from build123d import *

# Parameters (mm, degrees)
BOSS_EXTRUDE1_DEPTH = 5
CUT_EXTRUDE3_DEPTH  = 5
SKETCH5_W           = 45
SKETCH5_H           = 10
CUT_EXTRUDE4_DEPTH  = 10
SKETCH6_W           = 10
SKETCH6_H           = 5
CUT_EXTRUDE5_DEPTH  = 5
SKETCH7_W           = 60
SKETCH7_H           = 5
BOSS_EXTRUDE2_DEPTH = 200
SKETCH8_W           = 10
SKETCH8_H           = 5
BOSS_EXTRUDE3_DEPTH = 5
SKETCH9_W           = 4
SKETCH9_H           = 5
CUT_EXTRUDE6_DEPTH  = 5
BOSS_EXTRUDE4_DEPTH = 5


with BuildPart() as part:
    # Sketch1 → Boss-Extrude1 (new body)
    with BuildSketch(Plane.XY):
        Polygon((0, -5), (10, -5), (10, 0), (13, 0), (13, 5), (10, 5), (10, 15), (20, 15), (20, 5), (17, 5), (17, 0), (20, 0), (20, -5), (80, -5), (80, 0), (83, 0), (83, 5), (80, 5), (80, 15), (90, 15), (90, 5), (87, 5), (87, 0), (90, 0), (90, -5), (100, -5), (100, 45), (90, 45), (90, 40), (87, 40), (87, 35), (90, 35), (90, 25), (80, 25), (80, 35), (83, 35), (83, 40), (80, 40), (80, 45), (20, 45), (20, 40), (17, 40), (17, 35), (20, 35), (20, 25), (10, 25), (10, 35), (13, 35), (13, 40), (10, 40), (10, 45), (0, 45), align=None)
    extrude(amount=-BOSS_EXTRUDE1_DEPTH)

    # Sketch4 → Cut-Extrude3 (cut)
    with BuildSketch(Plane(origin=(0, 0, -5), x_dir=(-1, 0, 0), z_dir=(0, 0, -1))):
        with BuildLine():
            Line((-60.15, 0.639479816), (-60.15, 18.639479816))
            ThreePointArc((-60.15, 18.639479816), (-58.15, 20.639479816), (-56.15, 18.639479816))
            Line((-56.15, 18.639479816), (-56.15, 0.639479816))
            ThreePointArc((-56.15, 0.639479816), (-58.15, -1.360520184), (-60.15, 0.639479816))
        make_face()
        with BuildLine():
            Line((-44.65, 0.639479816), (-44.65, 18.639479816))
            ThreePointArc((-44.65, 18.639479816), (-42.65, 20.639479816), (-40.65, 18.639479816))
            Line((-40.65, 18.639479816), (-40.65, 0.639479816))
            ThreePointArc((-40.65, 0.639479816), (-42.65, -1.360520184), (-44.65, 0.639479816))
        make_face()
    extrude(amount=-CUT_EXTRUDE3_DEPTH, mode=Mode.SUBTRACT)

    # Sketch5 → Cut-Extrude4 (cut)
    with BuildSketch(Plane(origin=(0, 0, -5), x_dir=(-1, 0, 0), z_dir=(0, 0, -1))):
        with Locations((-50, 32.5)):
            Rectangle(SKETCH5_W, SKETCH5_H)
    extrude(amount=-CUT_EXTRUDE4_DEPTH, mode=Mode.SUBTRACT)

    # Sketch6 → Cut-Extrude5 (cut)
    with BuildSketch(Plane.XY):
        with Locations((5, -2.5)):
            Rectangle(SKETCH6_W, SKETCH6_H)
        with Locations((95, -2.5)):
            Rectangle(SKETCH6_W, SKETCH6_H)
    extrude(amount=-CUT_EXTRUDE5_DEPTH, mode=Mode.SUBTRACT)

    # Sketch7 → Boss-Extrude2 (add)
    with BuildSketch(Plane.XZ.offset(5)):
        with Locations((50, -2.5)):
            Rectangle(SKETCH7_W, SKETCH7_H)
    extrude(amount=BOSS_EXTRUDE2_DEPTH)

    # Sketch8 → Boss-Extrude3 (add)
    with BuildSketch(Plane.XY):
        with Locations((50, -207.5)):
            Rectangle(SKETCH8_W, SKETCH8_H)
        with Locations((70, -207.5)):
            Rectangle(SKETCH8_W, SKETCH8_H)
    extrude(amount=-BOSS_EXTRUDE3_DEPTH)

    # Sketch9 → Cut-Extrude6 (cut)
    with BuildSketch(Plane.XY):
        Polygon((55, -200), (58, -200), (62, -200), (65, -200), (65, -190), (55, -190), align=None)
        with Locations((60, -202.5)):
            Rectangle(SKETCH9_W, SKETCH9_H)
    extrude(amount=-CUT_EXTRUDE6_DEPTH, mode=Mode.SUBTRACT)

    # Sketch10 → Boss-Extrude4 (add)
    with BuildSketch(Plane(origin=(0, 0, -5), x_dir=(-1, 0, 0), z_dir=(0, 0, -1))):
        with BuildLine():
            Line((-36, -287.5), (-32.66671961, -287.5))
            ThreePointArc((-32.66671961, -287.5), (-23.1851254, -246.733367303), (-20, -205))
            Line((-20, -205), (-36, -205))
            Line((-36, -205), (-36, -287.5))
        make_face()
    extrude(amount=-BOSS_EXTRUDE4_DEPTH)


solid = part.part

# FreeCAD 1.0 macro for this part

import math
import FreeCAD as App
import Part
import Sketcher


def add_polygon(sketch, points):
    """Adds a closed chain of lines whose ends are joined by coincident constraints."""
    first, n = sketch.GeometryCount, len(points)
    for a, b in zip(points, points[1:] + points[:1]):
        sketch.addGeometry(Part.LineSegment(App.Vector(*a, 0), App.Vector(*b, 0)), False)
    for i in range(n):
        sketch.addConstraint(Sketcher.Constraint("Coincident", first + i, 2, first + (i + 1) % n, 1))

doc = App.newDocument("Part")
params = doc.addObject("Spreadsheet::Sheet", "Params")
for row, (alias, value) in enumerate([
    ("sketch1_width", "10 mm"),
    ("sketch1_width2", "3 mm"),
    ("sketch1_width3", "60 mm"),
    ("sketch1_height", "5 mm"),
    ("sketch1_height2", "50 mm"),
    ("pad1_length", "5 mm"),
    ("sketch2_radius", "2 mm"),
    ("sketch2_height", "18 mm"),
    ("pocket1_length", "5 mm"),
    ("sketch3_width", "45 mm"),
    ("sketch3_height", "10 mm"),
    ("pocket2_length", "10 mm"),
    ("sketch4_width", "10 mm"),
    ("sketch4_height", "5 mm"),
    ("pocket3_length", "5 mm"),
    ("sketch5_width", "60 mm"),
    ("sketch5_height", "5 mm"),
    ("pad2_length", "200 mm"),
    ("sketch6_width", "10 mm"),
    ("sketch6_height", "5 mm"),
    ("pad3_length", "5 mm"),
    ("sketch7_width", "3 mm"),
    ("sketch7_width2", "4 mm"),
    ("sketch7_height", "5 mm"),
    ("pocket4_length", "5 mm"),
    ("sketch8_radius", "275 mm"),
    ("sketch8_width", "16 mm"),
    ("sketch8_height", "82.5 mm"),
    ("pad4_length", "5 mm"),
], start=1):
    params.set(f"A{row}", alias)
    params.set(f"B{row}", "=" + value)
    params.setAlias(f"B{row}", alias)

body = doc.addObject("PartDesign::Body", "Body")

# Sketch on XY plane
sketch1 = doc.addObject("Sketcher::SketchObject", "Sketch")
body.addObject(sketch1)
sketch1.AttachmentSupport = (doc.XY_Plane, [""])
sketch1.MapMode = "FlatFace"
add_polygon(sketch1, [(0, -5), (10, -5), (10, 0), (13, 0), (13, 5), (10, 5), (10, 15), (20, 15), (20, 5), (17, 5), (17, 0), (20, 0), (20, -5), (80, -5), (80, 0), (83, 0), (83, 5), (80, 5), (80, 15), (90, 15), (90, 5), (87, 5), (87, 0), (90, 0), (90, -5), (100, -5), (100, 45), (90, 45), (90, 40), (87, 40), (87, 35), (90, 35), (90, 25), (80, 25), (80, 35), (83, 35), (83, 40), (80, 40), (80, 45), (20, 45), (20, 40), (17, 40), (17, 35), (20, 35), (20, 25), (10, 25), (10, 35), (13, 35), (13, 40), (10, 40), (10, 45), (0, 45)])  # lines 0-51
sketch1.addConstraint(Sketcher.Constraint("Horizontal", 0))
sketch1.addConstraint(Sketcher.Constraint("Vertical", 1))
sketch1.addConstraint(Sketcher.Constraint("Horizontal", 2))
sketch1.addConstraint(Sketcher.Constraint("Vertical", 3))
sketch1.addConstraint(Sketcher.Constraint("Horizontal", 4))
sketch1.addConstraint(Sketcher.Constraint("Vertical", 5))
sketch1.addConstraint(Sketcher.Constraint("Horizontal", 6))
sketch1.addConstraint(Sketcher.Constraint("Vertical", 7))
sketch1.addConstraint(Sketcher.Constraint("Horizontal", 8))
sketch1.addConstraint(Sketcher.Constraint("Vertical", 9))
sketch1.addConstraint(Sketcher.Constraint("Horizontal", 10))
sketch1.addConstraint(Sketcher.Constraint("Vertical", 11))
sketch1.addConstraint(Sketcher.Constraint("Horizontal", 12))
sketch1.addConstraint(Sketcher.Constraint("Vertical", 13))
sketch1.addConstraint(Sketcher.Constraint("Horizontal", 14))
sketch1.addConstraint(Sketcher.Constraint("Vertical", 15))
sketch1.addConstraint(Sketcher.Constraint("Horizontal", 16))
sketch1.addConstraint(Sketcher.Constraint("Vertical", 17))
sketch1.addConstraint(Sketcher.Constraint("Horizontal", 18))
sketch1.addConstraint(Sketcher.Constraint("Vertical", 19))
sketch1.addConstraint(Sketcher.Constraint("Horizontal", 20))
sketch1.addConstraint(Sketcher.Constraint("Vertical", 21))
sketch1.addConstraint(Sketcher.Constraint("Horizontal", 22))
sketch1.addConstraint(Sketcher.Constraint("Vertical", 23))
sketch1.addConstraint(Sketcher.Constraint("Horizontal", 24))
sketch1.addConstraint(Sketcher.Constraint("Vertical", 25))
sketch1.addConstraint(Sketcher.Constraint("Horizontal", 26))
sketch1.addConstraint(Sketcher.Constraint("Vertical", 27))
sketch1.addConstraint(Sketcher.Constraint("Horizontal", 28))
sketch1.addConstraint(Sketcher.Constraint("Vertical", 29))
sketch1.addConstraint(Sketcher.Constraint("Horizontal", 30))
sketch1.addConstraint(Sketcher.Constraint("Vertical", 31))
sketch1.addConstraint(Sketcher.Constraint("Horizontal", 32))
sketch1.addConstraint(Sketcher.Constraint("Vertical", 33))
sketch1.addConstraint(Sketcher.Constraint("Horizontal", 34))
sketch1.addConstraint(Sketcher.Constraint("Vertical", 35))
sketch1.addConstraint(Sketcher.Constraint("Horizontal", 36))
sketch1.addConstraint(Sketcher.Constraint("Vertical", 37))
sketch1.addConstraint(Sketcher.Constraint("Horizontal", 38))
sketch1.addConstraint(Sketcher.Constraint("Vertical", 39))
sketch1.addConstraint(Sketcher.Constraint("Horizontal", 40))
sketch1.addConstraint(Sketcher.Constraint("Vertical", 41))
sketch1.addConstraint(Sketcher.Constraint("Horizontal", 42))
sketch1.addConstraint(Sketcher.Constraint("Vertical", 43))
sketch1.addConstraint(Sketcher.Constraint("Horizontal", 44))
sketch1.addConstraint(Sketcher.Constraint("Vertical", 45))
sketch1.addConstraint(Sketcher.Constraint("Horizontal", 46))
sketch1.addConstraint(Sketcher.Constraint("Vertical", 47))
sketch1.addConstraint(Sketcher.Constraint("Horizontal", 48))
sketch1.addConstraint(Sketcher.Constraint("Vertical", 49))
sketch1.addConstraint(Sketcher.Constraint("Horizontal", 50))
sketch1.addConstraint(Sketcher.Constraint("Vertical", 51))
sketch1.addConstraint(Sketcher.Constraint("Symmetric", 0, 2, 4, 2, -1))
sketch1.addConstraint(Sketcher.Constraint("Symmetric", 7, 2, 11, 2, -1))
sketch1.addConstraint(Sketcher.Constraint("Symmetric", 12, 2, 16, 2, -1))
sketch1.addConstraint(Sketcher.Constraint("Symmetric", 19, 2, 23, 2, -1))
sketch1.addConstraint(Sketcher.Constraint("PointOnObject", 1, 2, -1))
sketch1.addConstraint(Sketcher.Constraint("PointOnObject", 9, 2, -1))
sketch1.addConstraint(Sketcher.Constraint("PointOnObject", 13, 2, -1))
sketch1.addConstraint(Sketcher.Constraint("PointOnObject", 21, 2, -1))
sketch1.addConstraint(Sketcher.Constraint("PointOnObject", 50, 2, -2))
sketch1.addConstraint(Sketcher.Constraint("Horizontal", 4, 2, 7, 2))
sketch1.addConstraint(Sketcher.Constraint("Horizontal", 6, 2, 17, 2))
sketch1.addConstraint(Sketcher.Constraint("Horizontal", 16, 2, 19, 2))
sketch1.addConstraint(Sketcher.Constraint("Horizontal", 30, 2, 33, 2))
sketch1.addConstraint(Sketcher.Constraint("Horizontal", 28, 2, 35, 2))
sketch1.addConstraint(Sketcher.Constraint("Horizontal", 26, 2, 37, 2))
sketch1.addConstraint(Sketcher.Constraint("Horizontal", 36, 2, 39, 2))
sketch1.addConstraint(Sketcher.Constraint("Horizontal", 34, 2, 41, 2))
sketch1.addConstraint(Sketcher.Constraint("Horizontal", 32, 2, 43, 2))
sketch1.addConstraint(Sketcher.Constraint("Horizontal", 42, 2, 45, 2))
sketch1.addConstraint(Sketcher.Constraint("Horizontal", 40, 2, 47, 2))
sketch1.addConstraint(Sketcher.Constraint("Horizontal", 38, 2, 49, 2))
sketch1.addConstraint(Sketcher.Constraint("Vertical", 23, 2, 26, 2))
sketch1.addConstraint(Sketcher.Constraint("Vertical", 21, 2, 28, 2))
sketch1.addConstraint(Sketcher.Constraint("Vertical", 27, 2, 30, 2))
sketch1.addConstraint(Sketcher.Constraint("Vertical", 17, 2, 32, 2))
sketch1.addConstraint(Sketcher.Constraint("Vertical", 15, 2, 34, 2))
sketch1.addConstraint(Sketcher.Constraint("Vertical", 33, 2, 36, 2))
sketch1.addConstraint(Sketcher.Constraint("Vertical", 11, 2, 38, 2))
sketch1.addConstraint(Sketcher.Constraint("Vertical", 9, 2, 40, 2))
sketch1.addConstraint(Sketcher.Constraint("Vertical", 39, 2, 42, 2))
sketch1.addConstraint(Sketcher.Constraint("Vertical", 5, 2, 44, 2))
sketch1.addConstraint(Sketcher.Constraint("Vertical", 3, 2, 46, 2))
sketch1.addConstraint(Sketcher.Constraint("Vertical", 45, 2, 48, 2))
sketch1.addConstraint(Sketcher.Constraint("Equal", 0, 6))
sketch1.addConstraint(Sketcher.Constraint("Equal", 4, 8))
sketch1.addConstraint(Sketcher.Constraint("Equal", 10, 14))
sketch1.addConstraint(Sketcher.Constraint("Equal", 6, 18))
sketch1.addConstraint(Sketcher.Constraint("Equal", 16, 20))
sketch1.addConstraint(Sketcher.Constraint("Equal", 18, 24))
sketch1.addConstraint(Sketcher.Constraint("Equal", 50, 5))
sketch1.addConstraint(Sketcher.Constraint("Equal", 23, 27))
sketch1.addConstraint(Sketcher.Constraint("Equal", 27, 29))
sketch1.addConstraint(Sketcher.Constraint("Equal", 19, 31))
sketch1.addConstraint(Sketcher.Constraint("DistanceX", 0, 1, 0, 2, 10.0))
sketch1.addConstraint(Sketcher.Constraint("DistanceX", 2, 1, 2, 2, 3.0))
sketch1.addConstraint(Sketcher.Constraint("DistanceX", 12, 1, 12, 2, 60.0))
sketch1.addConstraint(Sketcher.Constraint("DistanceY", 1, 1, 1, 2, 5.0))
sketch1.addConstraint(Sketcher.Constraint("DistanceY", 25, 1, 25, 2, 50.0))
sketch1.setExpression("Constraints[147]", "Params.sketch1_width")
sketch1.setExpression("Constraints[148]", "Params.sketch1_width2")
sketch1.setExpression("Constraints[149]", "Params.sketch1_width3")
sketch1.setExpression("Constraints[150]", "Params.sketch1_height")
sketch1.setExpression("Constraints[151]", "Params.sketch1_height2")
pad1 = doc.addObject("PartDesign::Pad", "Pad")
body.addObject(pad1)
pad1.Profile = sketch1
pad1.setExpression("Length", "Params.pad1_length")
pad1.Reversed = True

# Sketch on XY plane
sketch2 = doc.addObject("Sketcher::SketchObject", "Sketch001")
body.addObject(sketch2)
sketch2.AttachmentSupport = (doc.XY_Plane, [""])
sketch2.MapMode = "FlatFace"
sketch2.AttachmentOffset = App.Placement(App.Vector(0, 0, -5), App.Rotation())
sketch2.addGeometry(Part.LineSegment(App.Vector(60.1, 18.6, 0), App.Vector(60.1, 0.6, 0)), False)
sketch2.addGeometry(Part.ArcOfCircle(Part.Circle(App.Vector(58.1, 0.6, 0), App.Vector(0, 0, 1), 2), math.radians(180), math.radians(360)), False)
sketch2.addGeometry(Part.LineSegment(App.Vector(56.1, 0.6, 0), App.Vector(56.1, 18.6, 0)), False)
sketch2.addGeometry(Part.ArcOfCircle(Part.Circle(App.Vector(58.1, 18.6, 0), App.Vector(0, 0, 1), 2), math.radians(0), math.radians(180)), False)
sketch2.addGeometry(Part.LineSegment(App.Vector(44.6, 18.6, 0), App.Vector(44.6, 0.6, 0)), False)
sketch2.addGeometry(Part.ArcOfCircle(Part.Circle(App.Vector(42.6, 0.6, 0), App.Vector(0, 0, 1), 2), math.radians(180), math.radians(360)), False)
sketch2.addGeometry(Part.LineSegment(App.Vector(40.6, 0.6, 0), App.Vector(40.6, 18.6, 0)), False)
sketch2.addGeometry(Part.ArcOfCircle(Part.Circle(App.Vector(42.6, 18.6, 0), App.Vector(0, 0, 1), 2), math.radians(0), math.radians(180)), False)
sketch2.addConstraint(Sketcher.Constraint("Tangent", 0, 2, 1, 2))
sketch2.addConstraint(Sketcher.Constraint("Tangent", 1, 1, 2, 1))
sketch2.addConstraint(Sketcher.Constraint("Tangent", 2, 2, 3, 2))
sketch2.addConstraint(Sketcher.Constraint("Tangent", 3, 1, 0, 1))
sketch2.addConstraint(Sketcher.Constraint("Tangent", 4, 2, 5, 2))
sketch2.addConstraint(Sketcher.Constraint("Tangent", 5, 1, 6, 1))
sketch2.addConstraint(Sketcher.Constraint("Tangent", 6, 2, 7, 2))
sketch2.addConstraint(Sketcher.Constraint("Tangent", 7, 1, 4, 1))
sketch2.addConstraint(Sketcher.Constraint("Vertical", 0))
sketch2.addConstraint(Sketcher.Constraint("Vertical", 2))
sketch2.addConstraint(Sketcher.Constraint("Vertical", 4))
sketch2.addConstraint(Sketcher.Constraint("Vertical", 6))
sketch2.addConstraint(Sketcher.Constraint("Equal", 3, 5))
sketch2.addConstraint(Sketcher.Constraint("Horizontal", 1, 3, 5, 3))
sketch2.addConstraint(Sketcher.Constraint("Horizontal", 3, 3, 7, 3))
sketch2.addConstraint(Sketcher.Constraint("Radius", 1, 2.0))
sketch2.addConstraint(Sketcher.Constraint("DistanceY", 0, 2, 0, 1, 18.0))
sketch2.addConstraint(Sketcher.Constraint("DistanceX", 5, 3, 1, 3, 15.5))
sketch2.addConstraint(Sketcher.Constraint("DistanceX", -1, 1, 1, 3, 58.15))
sketch2.addConstraint(Sketcher.Constraint("DistanceY", -1, 1, 1, 3, 0.63948))
sketch2.setExpression("Constraints[15]", "Params.sketch2_radius")
sketch2.setExpression("Constraints[16]", "Params.sketch2_height")
pocket1 = doc.addObject("PartDesign::Pocket", "Pocket")
body.addObject(pocket1)
pocket1.Profile = sketch2
pocket1.setExpression("Length", "Params.pocket1_length")
pocket1.Reversed = True

# Sketch on XY plane
sketch3 = doc.addObject("Sketcher::SketchObject", "Sketch002")
body.addObject(sketch3)
sketch3.AttachmentSupport = (doc.XY_Plane, [""])
sketch3.MapMode = "FlatFace"
sketch3.AttachmentOffset = App.Placement(App.Vector(0, 0, -5), App.Rotation())
add_polygon(sketch3, [(72, 38), (72, 28), (28, 28), (28, 38)])  # lines 0-3
sketch3.addConstraint(Sketcher.Constraint("Vertical", 0))
sketch3.addConstraint(Sketcher.Constraint("Horizontal", 1))
sketch3.addConstraint(Sketcher.Constraint("Vertical", 2))
sketch3.addConstraint(Sketcher.Constraint("Horizontal", 3))
sketch3.addConstraint(Sketcher.Constraint("DistanceX", 1, 2, 1, 1, 45.0))
sketch3.addConstraint(Sketcher.Constraint("DistanceY", 0, 2, 0, 1, 10.0))
sketch3.addConstraint(Sketcher.Constraint("DistanceX", -1, 1, 0, 2, 72.5))
sketch3.addConstraint(Sketcher.Constraint("DistanceY", -1, 1, 0, 2, 27.5))
sketch3.setExpression("Constraints[8]", "Params.sketch3_width")
sketch3.setExpression("Constraints[9]", "Params.sketch3_height")
pocket2 = doc.addObject("PartDesign::Pocket", "Pocket001")
body.addObject(pocket2)
pocket2.Profile = sketch3
pocket2.setExpression("Length", "Params.pocket2_length")
pocket2.Reversed = True

# Sketch on XY plane
sketch4 = doc.addObject("Sketcher::SketchObject", "Sketch003")
body.addObject(sketch4)
sketch4.AttachmentSupport = (doc.XY_Plane, [""])
sketch4.MapMode = "FlatFace"
add_polygon(sketch4, [(0, 0), (0, -5), (10, -5), (10, 0)])  # lines 0-3
add_polygon(sketch4, [(90, 0), (90, -5), (100, -5), (100, 0)])  # lines 4-7
sketch4.addConstraint(Sketcher.Constraint("Vertical", 0))
sketch4.addConstraint(Sketcher.Constraint("Horizontal", 1))
sketch4.addConstraint(Sketcher.Constraint("Vertical", 2))
sketch4.addConstraint(Sketcher.Constraint("Horizontal", 3))
sketch4.addConstraint(Sketcher.Constraint("Vertical", 4))
sketch4.addConstraint(Sketcher.Constraint("Horizontal", 5))
sketch4.addConstraint(Sketcher.Constraint("Vertical", 6))
sketch4.addConstraint(Sketcher.Constraint("Horizontal", 7))
sketch4.addConstraint(Sketcher.Constraint("Coincident", 3, 2, -1, 1))
sketch4.addConstraint(Sketcher.Constraint("PointOnObject", 6, 2, -1))
sketch4.addConstraint(Sketcher.Constraint("Horizontal", 1, 2, 4, 2))
sketch4.addConstraint(Sketcher.Constraint("Equal", 3, 5))
sketch4.addConstraint(Sketcher.Constraint("DistanceX", 1, 1, 1, 2, 10.0))
sketch4.addConstraint(Sketcher.Constraint("DistanceY", 0, 2, 0, 1, 5.0))
sketch4.addConstraint(Sketcher.Constraint("DistanceX", -1, 1, 4, 2, 90.0))
sketch4.setExpression("Constraints[20]", "Params.sketch4_width")
sketch4.setExpression("Constraints[21]", "Params.sketch4_height")
pocket3 = doc.addObject("PartDesign::Pocket", "Pocket002")
body.addObject(pocket3)
pocket3.Profile = sketch4
pocket3.setExpression("Length", "Params.pocket3_length")

# Sketch on XZ plane
sketch5 = doc.addObject("Sketcher::SketchObject", "Sketch004")
body.addObject(sketch5)
sketch5.AttachmentSupport = (doc.XZ_Plane, [""])
sketch5.MapMode = "FlatFace"
sketch5.AttachmentOffset = App.Placement(App.Vector(0, 0, 5), App.Rotation())
add_polygon(sketch5, [(20, 0), (20, -5), (80, -5), (80, 0)])  # lines 0-3
sketch5.addConstraint(Sketcher.Constraint("Vertical", 0))
sketch5.addConstraint(Sketcher.Constraint("Horizontal", 1))
sketch5.addConstraint(Sketcher.Constraint("Vertical", 2))
sketch5.addConstraint(Sketcher.Constraint("Horizontal", 3))
sketch5.addConstraint(Sketcher.Constraint("PointOnObject", 2, 2, -1))
sketch5.addConstraint(Sketcher.Constraint("DistanceX", 1, 1, 1, 2, 60.0))
sketch5.addConstraint(Sketcher.Constraint("DistanceY", 0, 2, 0, 1, 5.0))
sketch5.addConstraint(Sketcher.Constraint("DistanceX", -1, 1, 0, 2, 20.0))
sketch5.setExpression("Constraints[9]", "Params.sketch5_width")
sketch5.setExpression("Constraints[10]", "Params.sketch5_height")
pad2 = doc.addObject("PartDesign::Pad", "Pad001")
body.addObject(pad2)
pad2.Profile = sketch5
pad2.setExpression("Length", "Params.pad2_length")

# Sketch on XY plane
sketch6 = doc.addObject("Sketcher::SketchObject", "Sketch005")
body.addObject(sketch6)
sketch6.AttachmentSupport = (doc.XY_Plane, [""])
sketch6.MapMode = "FlatFace"
add_polygon(sketch6, [(45, -205), (45, -210), (55, -210), (55, -205)])  # lines 0-3
add_polygon(sketch6, [(65, -205), (65, -210), (75, -210), (75, -205)])  # lines 4-7
sketch6.addConstraint(Sketcher.Constraint("Vertical", 0))
sketch6.addConstraint(Sketcher.Constraint("Horizontal", 1))
sketch6.addConstraint(Sketcher.Constraint("Vertical", 2))
sketch6.addConstraint(Sketcher.Constraint("Horizontal", 3))
sketch6.addConstraint(Sketcher.Constraint("Vertical", 4))
sketch6.addConstraint(Sketcher.Constraint("Horizontal", 5))
sketch6.addConstraint(Sketcher.Constraint("Vertical", 6))
sketch6.addConstraint(Sketcher.Constraint("Horizontal", 7))
sketch6.addConstraint(Sketcher.Constraint("Horizontal", 1, 2, 4, 2))
sketch6.addConstraint(Sketcher.Constraint("Horizontal", 3, 2, 6, 2))
sketch6.addConstraint(Sketcher.Constraint("Equal", 3, 5))
sketch6.addConstraint(Sketcher.Constraint("DistanceX", 1, 1, 1, 2, 10.0))
sketch6.addConstraint(Sketcher.Constraint("DistanceY", 0, 2, 0, 1, 5.0))
sketch6.addConstraint(Sketcher.Constraint("DistanceX", -1, 1, 0, 2, 45.0))
sketch6.addConstraint(Sketcher.Constraint("DistanceY", 0, 2, -1, 1, 210.0))
sketch6.addConstraint(Sketcher.Constraint("DistanceX", -1, 1, 4, 2, 65.0))
sketch6.setExpression("Constraints[19]", "Params.sketch6_width")
sketch6.setExpression("Constraints[20]", "Params.sketch6_height")
pad3 = doc.addObject("PartDesign::Pad", "Pad002")
body.addObject(pad3)
pad3.Profile = sketch6
pad3.setExpression("Length", "Params.pad3_length")
pad3.Reversed = True

# Sketch on XY plane
sketch7 = doc.addObject("Sketcher::SketchObject", "Sketch006")
body.addObject(sketch7)
sketch7.AttachmentSupport = (doc.XY_Plane, [""])
sketch7.MapMode = "FlatFace"
add_polygon(sketch7, [(55, -200), (58, -200), (58, -205), (62, -205), (62, -200), (65, -200), (65, -190), (55, -190)])  # lines 0-7
sketch7.addConstraint(Sketcher.Constraint("Horizontal", 0))
sketch7.addConstraint(Sketcher.Constraint("Vertical", 1))
sketch7.addConstraint(Sketcher.Constraint("Horizontal", 2))
sketch7.addConstraint(Sketcher.Constraint("Vertical", 3))
sketch7.addConstraint(Sketcher.Constraint("Horizontal", 4))
sketch7.addConstraint(Sketcher.Constraint("Vertical", 5))
sketch7.addConstraint(Sketcher.Constraint("Horizontal", 6))
sketch7.addConstraint(Sketcher.Constraint("Vertical", 7))
sketch7.addConstraint(Sketcher.Constraint("Horizontal", 0, 2, 3, 2))
sketch7.addConstraint(Sketcher.Constraint("Equal", 0, 4))
sketch7.addConstraint(Sketcher.Constraint("Equal", 6, 5))
sketch7.addConstraint(Sketcher.Constraint("DistanceX", 0, 1, 0, 2, 3.0))
sketch7.addConstraint(Sketcher.Constraint("DistanceX", 2, 1, 2, 2, 4.0))
sketch7.addConstraint(Sketcher.Constraint("DistanceY", 1, 2, 1, 1, 5.0))
sketch7.addConstraint(Sketcher.Constraint("DistanceX", -1, 1, 0, 2, 58.0))
sketch7.addConstraint(Sketcher.Constraint("DistanceY", 0, 2, -1, 1, 200.0))
sketch7.setExpression("Constraints[19]", "Params.sketch7_width")
sketch7.setExpression("Constraints[20]", "Params.sketch7_width2")
sketch7.setExpression("Constraints[21]", "Params.sketch7_height")
pocket4 = doc.addObject("PartDesign::Pocket", "Pocket003")
body.addObject(pocket4)
pocket4.Profile = sketch7
pocket4.setExpression("Length", "Params.pocket4_length")

# Sketch on XY plane
sketch8 = doc.addObject("Sketcher::SketchObject", "Sketch007")
body.addObject(sketch8)
sketch8.AttachmentSupport = (doc.XY_Plane, [""])
sketch8.MapMode = "FlatFace"
sketch8.AttachmentOffset = App.Placement(App.Vector(0, 0, -5), App.Rotation())
sketch8.addGeometry(Part.LineSegment(App.Vector(36, -287.5, 0), App.Vector(32.7, -287.5, 0)), False)
sketch8.addGeometry(Part.ArcOfCircle(Part.Circle(App.Vector(295, -205, 0), App.Vector(0, 0, 1), 275), math.radians(180), math.radians(197.46)), False)
sketch8.addGeometry(Part.LineSegment(App.Vector(20, -205, 0), App.Vector(36, -205, 0)), False)
sketch8.addGeometry(Part.LineSegment(App.Vector(36, -205, 0), App.Vector(36, -287.5, 0)), False)
sketch8.addConstraint(Sketcher.Constraint("Coincident", 0, 2, 1, 2))
sketch8.addConstraint(Sketcher.Constraint("Coincident", 1, 1, 2, 1))
sketch8.addConstraint(Sketcher.Constraint("Coincident", 2, 2, 3, 1))
sketch8.addConstraint(Sketcher.Constraint("Coincident", 3, 2, 0, 1))
sketch8.addConstraint(Sketcher.Constraint("Horizontal", 0))
sketch8.addConstraint(Sketcher.Constraint("Horizontal", 2))
sketch8.addConstraint(Sketcher.Constraint("Vertical", 3))
sketch8.addConstraint(Sketcher.Constraint("Radius", 1, 275.0))
sketch8.addConstraint(Sketcher.Constraint("DistanceX", 2, 1, 2, 2, 16.0))
sketch8.addConstraint(Sketcher.Constraint("DistanceY", 3, 2, 3, 1, 82.5))
sketch8.addConstraint(Sketcher.Constraint("DistanceX", -1, 1, 1, 3, 295.0))
sketch8.addConstraint(Sketcher.Constraint("DistanceY", 1, 3, -1, 1, 205.0))
sketch8.addConstraint(Sketcher.Constraint("DistanceY", 2, 2, -1, 1, 205.0))
sketch8.setExpression("Constraints[7]", "Params.sketch8_radius")
sketch8.setExpression("Constraints[8]", "Params.sketch8_width")
sketch8.setExpression("Constraints[9]", "Params.sketch8_height")
pad4 = doc.addObject("PartDesign::Pad", "Pad003")
body.addObject(pad4)
pad4.Profile = sketch8
pad4.setExpression("Length", "Params.pad4_length")

doc.recompute()
